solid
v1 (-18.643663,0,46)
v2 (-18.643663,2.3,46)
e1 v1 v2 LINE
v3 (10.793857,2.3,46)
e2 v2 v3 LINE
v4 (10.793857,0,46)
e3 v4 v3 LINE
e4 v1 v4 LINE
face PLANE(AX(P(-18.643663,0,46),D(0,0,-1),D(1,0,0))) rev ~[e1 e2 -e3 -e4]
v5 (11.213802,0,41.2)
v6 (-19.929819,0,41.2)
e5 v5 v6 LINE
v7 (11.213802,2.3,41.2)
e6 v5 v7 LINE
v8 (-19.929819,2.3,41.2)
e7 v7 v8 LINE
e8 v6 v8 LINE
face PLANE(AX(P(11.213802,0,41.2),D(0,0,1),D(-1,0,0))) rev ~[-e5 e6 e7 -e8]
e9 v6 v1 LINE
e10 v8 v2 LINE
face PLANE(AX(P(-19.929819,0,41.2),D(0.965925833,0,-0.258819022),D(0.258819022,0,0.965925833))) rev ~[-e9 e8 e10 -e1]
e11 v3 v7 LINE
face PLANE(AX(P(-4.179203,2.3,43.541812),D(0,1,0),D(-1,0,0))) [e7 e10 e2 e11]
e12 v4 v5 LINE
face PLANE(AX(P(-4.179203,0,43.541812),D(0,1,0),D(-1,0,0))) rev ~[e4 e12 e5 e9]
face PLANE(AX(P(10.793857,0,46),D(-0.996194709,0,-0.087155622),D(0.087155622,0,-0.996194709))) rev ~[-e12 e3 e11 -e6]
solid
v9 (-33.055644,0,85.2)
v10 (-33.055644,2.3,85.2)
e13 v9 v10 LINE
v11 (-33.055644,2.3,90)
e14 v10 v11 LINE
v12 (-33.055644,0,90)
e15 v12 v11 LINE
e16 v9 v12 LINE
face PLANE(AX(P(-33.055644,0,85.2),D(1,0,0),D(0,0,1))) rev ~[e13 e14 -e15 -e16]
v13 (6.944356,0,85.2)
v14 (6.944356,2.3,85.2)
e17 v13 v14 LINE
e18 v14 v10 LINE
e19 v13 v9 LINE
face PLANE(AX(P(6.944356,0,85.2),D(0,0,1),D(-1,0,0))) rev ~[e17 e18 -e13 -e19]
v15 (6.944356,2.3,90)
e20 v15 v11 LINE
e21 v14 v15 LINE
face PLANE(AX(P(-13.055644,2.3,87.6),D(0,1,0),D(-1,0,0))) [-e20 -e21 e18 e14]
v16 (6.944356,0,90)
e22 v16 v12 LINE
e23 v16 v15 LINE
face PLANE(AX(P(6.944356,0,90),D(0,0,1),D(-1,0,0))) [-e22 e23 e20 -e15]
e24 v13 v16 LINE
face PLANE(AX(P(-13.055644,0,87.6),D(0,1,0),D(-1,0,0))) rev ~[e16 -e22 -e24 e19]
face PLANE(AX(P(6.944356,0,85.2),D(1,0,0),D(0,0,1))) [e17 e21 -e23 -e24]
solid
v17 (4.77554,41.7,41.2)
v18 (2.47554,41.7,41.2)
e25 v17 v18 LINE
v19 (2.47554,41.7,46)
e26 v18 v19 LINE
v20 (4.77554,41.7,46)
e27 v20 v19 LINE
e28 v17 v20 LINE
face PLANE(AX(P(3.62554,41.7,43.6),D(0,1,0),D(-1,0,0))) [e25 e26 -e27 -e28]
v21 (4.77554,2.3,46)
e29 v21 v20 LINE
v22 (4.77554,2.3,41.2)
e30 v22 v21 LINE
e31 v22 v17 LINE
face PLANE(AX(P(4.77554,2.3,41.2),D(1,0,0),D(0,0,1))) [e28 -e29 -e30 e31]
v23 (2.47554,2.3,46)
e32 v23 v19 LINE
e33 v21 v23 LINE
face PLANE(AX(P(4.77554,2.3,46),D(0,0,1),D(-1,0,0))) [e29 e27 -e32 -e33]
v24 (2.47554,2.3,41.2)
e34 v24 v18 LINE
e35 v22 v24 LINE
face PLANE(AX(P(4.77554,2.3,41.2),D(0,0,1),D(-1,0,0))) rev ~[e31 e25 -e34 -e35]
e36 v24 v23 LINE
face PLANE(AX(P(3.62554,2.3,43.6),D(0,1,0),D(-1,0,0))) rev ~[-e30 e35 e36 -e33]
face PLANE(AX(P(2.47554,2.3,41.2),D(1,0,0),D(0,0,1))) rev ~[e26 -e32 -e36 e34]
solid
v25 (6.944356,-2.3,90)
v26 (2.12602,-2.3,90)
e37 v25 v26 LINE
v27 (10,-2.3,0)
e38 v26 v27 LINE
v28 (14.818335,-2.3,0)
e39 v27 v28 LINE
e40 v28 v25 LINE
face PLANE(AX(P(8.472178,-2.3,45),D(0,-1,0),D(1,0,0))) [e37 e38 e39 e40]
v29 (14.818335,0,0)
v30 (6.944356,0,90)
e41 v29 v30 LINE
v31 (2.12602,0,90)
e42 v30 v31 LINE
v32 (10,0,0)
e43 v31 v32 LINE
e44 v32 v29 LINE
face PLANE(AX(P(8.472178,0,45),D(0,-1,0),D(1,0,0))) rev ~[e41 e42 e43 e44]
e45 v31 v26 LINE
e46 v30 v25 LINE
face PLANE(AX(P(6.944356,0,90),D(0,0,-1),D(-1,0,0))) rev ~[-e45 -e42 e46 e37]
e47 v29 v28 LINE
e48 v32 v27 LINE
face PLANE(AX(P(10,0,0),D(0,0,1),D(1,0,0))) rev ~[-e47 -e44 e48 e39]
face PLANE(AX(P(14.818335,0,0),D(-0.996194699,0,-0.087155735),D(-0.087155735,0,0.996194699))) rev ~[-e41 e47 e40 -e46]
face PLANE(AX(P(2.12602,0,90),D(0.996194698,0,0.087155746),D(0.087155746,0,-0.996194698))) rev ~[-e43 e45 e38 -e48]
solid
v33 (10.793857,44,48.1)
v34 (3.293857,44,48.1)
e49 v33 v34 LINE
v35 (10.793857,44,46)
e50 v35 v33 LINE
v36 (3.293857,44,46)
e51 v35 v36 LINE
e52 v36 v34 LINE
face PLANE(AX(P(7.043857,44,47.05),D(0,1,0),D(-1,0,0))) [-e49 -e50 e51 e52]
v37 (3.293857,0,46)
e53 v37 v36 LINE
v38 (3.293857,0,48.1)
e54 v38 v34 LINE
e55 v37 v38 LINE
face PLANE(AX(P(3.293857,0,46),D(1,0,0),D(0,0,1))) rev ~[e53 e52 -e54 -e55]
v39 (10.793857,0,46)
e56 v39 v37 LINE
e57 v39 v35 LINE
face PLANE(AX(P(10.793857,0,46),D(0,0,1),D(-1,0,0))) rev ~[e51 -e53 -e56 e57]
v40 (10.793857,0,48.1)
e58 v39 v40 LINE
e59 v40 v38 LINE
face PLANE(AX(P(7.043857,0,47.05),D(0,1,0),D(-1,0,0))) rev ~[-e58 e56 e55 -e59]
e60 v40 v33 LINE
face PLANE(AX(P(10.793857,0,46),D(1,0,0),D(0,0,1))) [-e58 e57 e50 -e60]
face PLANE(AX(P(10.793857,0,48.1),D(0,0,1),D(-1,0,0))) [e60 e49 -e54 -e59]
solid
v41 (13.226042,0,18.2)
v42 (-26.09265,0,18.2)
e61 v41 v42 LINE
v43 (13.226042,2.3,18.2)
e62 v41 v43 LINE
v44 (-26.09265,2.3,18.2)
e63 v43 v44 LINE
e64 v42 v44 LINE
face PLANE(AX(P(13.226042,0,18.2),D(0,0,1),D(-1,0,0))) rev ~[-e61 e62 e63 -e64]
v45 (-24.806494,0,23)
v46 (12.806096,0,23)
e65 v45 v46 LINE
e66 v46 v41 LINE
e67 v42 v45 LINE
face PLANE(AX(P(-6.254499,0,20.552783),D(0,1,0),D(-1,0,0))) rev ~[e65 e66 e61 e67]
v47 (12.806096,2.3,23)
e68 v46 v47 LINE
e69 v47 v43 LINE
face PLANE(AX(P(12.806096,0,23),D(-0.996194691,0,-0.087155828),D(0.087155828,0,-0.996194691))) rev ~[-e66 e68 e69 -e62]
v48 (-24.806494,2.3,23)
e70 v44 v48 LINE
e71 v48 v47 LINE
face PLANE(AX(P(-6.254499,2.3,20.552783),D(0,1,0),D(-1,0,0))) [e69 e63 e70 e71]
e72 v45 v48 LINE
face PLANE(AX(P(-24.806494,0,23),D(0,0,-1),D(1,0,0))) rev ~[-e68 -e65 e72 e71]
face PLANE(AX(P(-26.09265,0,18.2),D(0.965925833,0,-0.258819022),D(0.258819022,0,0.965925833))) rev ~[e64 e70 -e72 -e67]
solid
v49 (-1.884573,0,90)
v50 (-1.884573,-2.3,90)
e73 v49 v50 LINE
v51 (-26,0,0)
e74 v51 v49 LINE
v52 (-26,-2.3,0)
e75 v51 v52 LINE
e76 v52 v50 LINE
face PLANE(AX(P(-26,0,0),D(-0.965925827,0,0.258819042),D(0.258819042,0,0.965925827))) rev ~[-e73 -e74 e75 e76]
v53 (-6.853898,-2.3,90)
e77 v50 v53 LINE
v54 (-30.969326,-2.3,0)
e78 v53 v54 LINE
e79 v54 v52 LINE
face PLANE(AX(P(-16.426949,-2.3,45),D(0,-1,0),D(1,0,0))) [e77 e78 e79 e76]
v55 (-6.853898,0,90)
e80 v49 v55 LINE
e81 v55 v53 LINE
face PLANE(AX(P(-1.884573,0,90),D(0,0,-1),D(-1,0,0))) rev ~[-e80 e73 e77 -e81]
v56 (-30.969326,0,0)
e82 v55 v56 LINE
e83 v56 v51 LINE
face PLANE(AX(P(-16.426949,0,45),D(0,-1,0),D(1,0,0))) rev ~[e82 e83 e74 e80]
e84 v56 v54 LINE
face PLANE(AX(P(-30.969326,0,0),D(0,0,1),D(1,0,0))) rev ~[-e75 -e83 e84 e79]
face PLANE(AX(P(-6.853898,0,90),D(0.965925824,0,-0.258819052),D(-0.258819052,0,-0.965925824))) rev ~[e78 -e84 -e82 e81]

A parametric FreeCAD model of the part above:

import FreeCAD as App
import Part
import Sketcher
from FreeCAD import Vector
Q = App.Units.Quantity

doc = App.newDocument("Part")
body = doc.addObject("PartDesign::Body", "Body")
body.AllowCompound = True

sketch1 = body.newObject("Sketcher::SketchObject", "Sketch")
sketch1.AttachmentSupport = (doc.getObject("XZ_Plane"), [""])
sketch1.MapMode = "FlatFace"
sketch1.addGeometry(Part.LineSegment(Vector(2.1, 90, 0), Vector(10, 0, 0)), False)
sketch1.addGeometry(Part.LineSegment(Vector(10, 0, 0), Vector(14.8, 0, 0)), False)
sketch1.addGeometry(Part.LineSegment(Vector(14.8, 0, 0), Vector(6.9, 90, 0)), False)
sketch1.addGeometry(Part.LineSegment(Vector(6.9, 90, 0), Vector(2.1, 90, 0)), False)
sketch1.addGeometry(Part.LineSegment(Vector(-31, 0, 0), Vector(-26, 0, 0)), False)
sketch1.addGeometry(Part.LineSegment(Vector(-26, 0, 0), Vector(-1.9, 90, 0)), False)
sketch1.addGeometry(Part.LineSegment(Vector(-1.9, 90, 0), Vector(-6.9, 90, 0)), False)
sketch1.addGeometry(Part.LineSegment(Vector(-6.9, 90, 0), Vector(-31, 0, 0)), False)
sketch1.addConstraint(Sketcher.Constraint("Coincident", 0, 2, 1, 1))
sketch1.addConstraint(Sketcher.Constraint("Coincident", 1, 2, 2, 1))
sketch1.addConstraint(Sketcher.Constraint("Coincident", 2, 2, 3, 1))
sketch1.addConstraint(Sketcher.Constraint("Coincident", 3, 2, 0, 1))
sketch1.addConstraint(Sketcher.Constraint("Coincident", 4, 2, 5, 1))
sketch1.addConstraint(Sketcher.Constraint("Coincident", 5, 2, 6, 1))
sketch1.addConstraint(Sketcher.Constraint("Coincident", 6, 2, 7, 1))
sketch1.addConstraint(Sketcher.Constraint("Coincident", 7, 2, 4, 1))
sketch1.addConstraint(Sketcher.Constraint("Horizontal", 1))
sketch1.addConstraint(Sketcher.Constraint("Horizontal", 3))
sketch1.addConstraint(Sketcher.Constraint("Horizontal", 4))
sketch1.addConstraint(Sketcher.Constraint("Horizontal", 6))
sketch1.addConstraint(Sketcher.Constraint("PointOnObject", 0, 2, -1))
sketch1.addConstraint(Sketcher.Constraint("PointOnObject", 4, 2, -1))
sketch1.addConstraint(Sketcher.Constraint("Parallel", 0, 2))
sketch1.addConstraint(Sketcher.Constraint("Parallel", 5, 7))
sketch1.addConstraint(Sketcher.Constraint("Horizontal", 3, 2, 5, 2))
sketch1.addConstraint(Sketcher.Constraint("Angle", 0, Q("-85 deg")))
sketch1.addConstraint(Sketcher.Constraint("Angle", 5, Q("75 deg")))
sketch1.addConstraint(Sketcher.Constraint("DistanceX", -1, 1, 0, 2, Q("10 mm")))
sketch1.addConstraint(Sketcher.Constraint("DistanceY", -1, 1, 2, 2, Q("90 mm")))
sketch1.addConstraint(Sketcher.Constraint("DistanceX", 4, 2, -1, 1, Q("26 mm")))
sketch1.addConstraint(Sketcher.Constraint("DistanceX", 6, 2, 0, 2, Q("16.853898 mm")))
sketch1.addConstraint(Sketcher.Constraint("DistanceX", 1, 1, 1, 2, Q("4.818335 mm")))
pad1 = body.newObject("PartDesign::Pad", "Pad")
pad1.Profile = sketch1
pad1.Length = 2.3
body2 = doc.addObject("PartDesign::Body", "Body001")
body2.AllowCompound = True

sketch2 = body2.newObject("Sketcher::SketchObject", "Sketch001")
sketch2.AttachmentSupport = (doc.getObject("XZ_Plane001"), [""])
sketch2.MapMode = "FlatFace"
sketch2.addGeometry(Part.LineSegment(Vector(12.8, 23, 0), Vector(13.2, 18.2, 0)), False)
sketch2.addGeometry(Part.LineSegment(Vector(13.2, 18.2, 0), Vector(-26.1, 18.2, 0)), False)
sketch2.addGeometry(Part.LineSegment(Vector(-26.1, 18.2, 0), Vector(-24.8, 23, 0)), False)
sketch2.addGeometry(Part.LineSegment(Vector(-24.8, 23, 0), Vector(12.8, 23, 0)), False)
sketch2.addGeometry(Part.LineSegment(Vector(10.8, 46, 0), Vector(11.2, 41.2, 0)), False)
sketch2.addGeometry(Part.LineSegment(Vector(11.2, 41.2, 0), Vector(-19.9, 41.2, 0)), False)
sketch2.addGeometry(Part.LineSegment(Vector(-19.9, 41.2, 0), Vector(-18.6, 46, 0)), False)
sketch2.addGeometry(Part.LineSegment(Vector(-18.6, 46, 0), Vector(10.8, 46, 0)), False)
sketch2.addGeometry(Part.LineSegment(Vector(6.9, 90, 0), Vector(6.9, 85.2, 0)), False)
sketch2.addGeometry(Part.LineSegment(Vector(6.9, 85.2, 0), Vector(-33.1, 85.2, 0)), False)
sketch2.addGeometry(Part.LineSegment(Vector(-33.1, 85.2, 0), Vector(-33.1, 90, 0)), False)
sketch2.addGeometry(Part.LineSegment(Vector(-33.1, 90, 0), Vector(6.9, 90, 0)), False)
sketch2.addConstraint(Sketcher.Constraint("Coincident", 0, 2, 1, 1))
sketch2.addConstraint(Sketcher.Constraint("Coincident", 1, 2, 2, 1))
sketch2.addConstraint(Sketcher.Constraint("Coincident", 2, 2, 3, 1))
sketch2.addConstraint(Sketcher.Constraint("Coincident", 3, 2, 0, 1))
sketch2.addConstraint(Sketcher.Constraint("Coincident", 4, 2, 5, 1))
sketch2.addConstraint(Sketcher.Constraint("Coincident", 5, 2, 6, 1))
sketch2.addConstraint(Sketcher.Constraint("Coincident", 6, 2, 7, 1))
sketch2.addConstraint(Sketcher.Constraint("Coincident", 7, 2, 4, 1))
sketch2.addConstraint(Sketcher.Constraint("Coincident", 8, 2, 9, 1))
sketch2.addConstraint(Sketcher.Constraint("Coincident", 9, 2, 10, 1))
sketch2.addConstraint(Sketcher.Constraint("Coincident", 10, 2, 11, 1))
sketch2.addConstraint(Sketcher.Constraint("Coincident", 11, 2, 8, 1))
sketch2.addConstraint(Sketcher.Constraint("Horizontal", 1))
sketch2.addConstraint(Sketcher.Constraint("Horizontal", 3))
sketch2.addConstraint(Sketcher.Constraint("Horizontal", 5))
sketch2.addConstraint(Sketcher.Constraint("Horizontal", 7))
sketch2.addConstraint(Sketcher.Constraint("Vertical", 8))
sketch2.addConstraint(Sketcher.Constraint("Horizontal", 9))
sketch2.addConstraint(Sketcher.Constraint("Vertical", 10))
sketch2.addConstraint(Sketcher.Constraint("Horizontal", 11))
sketch2.addConstraint(Sketcher.Constraint("Parallel", 0, 4))
sketch2.addConstraint(Sketcher.Constraint("Parallel", 2, 6))
sketch2.addConstraint(Sketcher.Constraint("Equal", 0, 4))
sketch2.addConstraint(Sketcher.Constraint("DistanceX", 9, 2, 9, 1, Q("40 mm")))
sketch2.addConstraint(Sketcher.Constraint("Angle", 0, Q("-84.999995 deg")))
sketch2.addConstraint(Sketcher.Constraint("Angle", 2, Q("75.000001 deg")))
sketch2.addConstraint(Sketcher.Constraint("DistanceY", 8, 2, 8, 1, Q("4.8 mm")))
sketch2.addConstraint(Sketcher.Constraint("DistanceY", -1, 1, 2, 2, Q("23 mm")))
sketch2.addConstraint(Sketcher.Constraint("DistanceY", -1, 1, 6, 2, Q("46 mm")))
sketch2.addConstraint(Sketcher.Constraint("DistanceY", -1, 1, 10, 2, Q("90 mm")))
sketch2.addConstraint(Sketcher.Constraint("DistanceY", 4, 2, 8, 2, Q("44 mm")))
sketch2.addConstraint(Sketcher.Constraint("DistanceX", 3, 1, 3, 2, Q("37.61259 mm")))
sketch2.addConstraint(Sketcher.Constraint("DistanceX", 5, 2, 5, 1, Q("31.143621 mm")))
sketch2.addConstraint(Sketcher.Constraint("DistanceX", -1, 1, 4, 2, Q("11.213802 mm")))
sketch2.addConstraint(Sketcher.Constraint("DistanceX", 8, 2, 7, 2, Q("3.849501 mm")))
sketch2.addConstraint(Sketcher.Constraint("DistanceX", 1, 2, -1, 1, Q("26.09265 mm")))
pad2 = body2.newObject("PartDesign::Pad", "Pad001")
pad2.Profile = sketch2
pad2.Length = 2.3
pad2.Reversed = True
body3 = doc.addObject("PartDesign::Body", "Body002")

sketch3 = body3.newObject("Sketcher::SketchObject", "Sketch002")
sketch3.AttachmentSupport = (doc.getObject("XZ_Plane002"), [""])
sketch3.MapMode = "FlatFace"
sketch3.addGeometry(Part.LineSegment(Vector(10.8, 48.1, 0), Vector(10.8, 46, 0)), False)
sketch3.addGeometry(Part.LineSegment(Vector(10.8, 46, 0), Vector(3.3, 46, 0)), False)
sketch3.addGeometry(Part.LineSegment(Vector(3.3, 46, 0), Vector(3.3, 48.1, 0)), False)
sketch3.addGeometry(Part.LineSegment(Vector(3.3, 48.1, 0), Vector(10.8, 48.1, 0)), False)
sketch3.addConstraint(Sketcher.Constraint("Coincident", 0, 2, 1, 1))
sketch3.addConstraint(Sketcher.Constraint("Coincident", 1, 2, 2, 1))
sketch3.addConstraint(Sketcher.Constraint("Coincident", 2, 2, 3, 1))
sketch3.addConstraint(Sketcher.Constraint("Coincident", 3, 2, 0, 1))
sketch3.addConstraint(Sketcher.Constraint("Vertical", 0))
sketch3.addConstraint(Sketcher.Constraint("Horizontal", 1))
sketch3.addConstraint(Sketcher.Constraint("Vertical", 2))
sketch3.addConstraint(Sketcher.Constraint("Horizontal", 3))
sketch3.addConstraint(Sketcher.Constraint("DistanceX", 1, 2, 1, 1, Q("7.5 mm")))
sketch3.addConstraint(Sketcher.Constraint("DistanceY", 0, 2, 0, 1, Q("2.1 mm")))
sketch3.addConstraint(Sketcher.Constraint("DistanceY", -1, 1, 0, 2, Q("46 mm")))
sketch3.addConstraint(Sketcher.Constraint("DistanceX", -1, 1, 0, 2, Q("10.793857 mm")))
pad3 = body3.newObject("PartDesign::Pad", "Pad002")
pad3.Profile = sketch3
pad3.Length = 44
pad3.Reversed = True
body4 = doc.addObject("PartDesign::Body", "Body003")

sketch4 = body4.newObject("Sketcher::SketchObject", "Sketch003")
sketch4.AttachmentSupport = (doc.getObject("XZ_Plane003"), [""])
sketch4.MapMode = "FlatFace"
sketch4.AttachmentOffset = App.Placement(Vector(0, 0, -2.3), App.Rotation())
sketch4.addGeometry(Part.LineSegment(Vector(4.8, 46, 0), Vector(4.8, 41.2, 0)), False)
sketch4.addGeometry(Part.LineSegment(Vector(4.8, 41.2, 0), Vector(2.5, 41.2, 0)), False)
sketch4.addGeometry(Part.LineSegment(Vector(2.5, 41.2, 0), Vector(2.5, 46, 0)), False)
sketch4.addGeometry(Part.LineSegment(Vector(2.5, 46, 0), Vector(4.8, 46, 0)), False)
sketch4.addConstraint(Sketcher.Constraint("Coincident", 0, 2, 1, 1))
sketch4.addConstraint(Sketcher.Constraint("Coincident", 1, 2, 2, 1))
sketch4.addConstraint(Sketcher.Constraint("Coincident", 2, 2, 3, 1))
sketch4.addConstraint(Sketcher.Constraint("Coincident", 3, 2, 0, 1))
sketch4.addConstraint(Sketcher.Constraint("Vertical", 0))
sketch4.addConstraint(Sketcher.Constraint("Horizontal", 1))
sketch4.addConstraint(Sketcher.Constraint("Vertical", 2))
sketch4.addConstraint(Sketcher.Constraint("Horizontal", 3))
sketch4.addConstraint(Sketcher.Constraint("DistanceX", 1, 2, 1, 1, Q("2.3 mm")))
sketch4.addConstraint(Sketcher.Constraint("DistanceY", 0, 2, 0, 1, Q("4.8 mm")))
sketch4.addConstraint(Sketcher.Constraint("DistanceY", -1, 1, 2, 2, Q("46 mm")))
sketch4.addConstraint(Sketcher.Constraint("DistanceX", -1, 1, 0, 2, Q("4.77554 mm")))
pad4 = body4.newObject("PartDesign::Pad", "Pad003")
pad4.Profile = sketch4
pad4.Length = 39.4
pad4.Reversed = True

doc.recompute()
